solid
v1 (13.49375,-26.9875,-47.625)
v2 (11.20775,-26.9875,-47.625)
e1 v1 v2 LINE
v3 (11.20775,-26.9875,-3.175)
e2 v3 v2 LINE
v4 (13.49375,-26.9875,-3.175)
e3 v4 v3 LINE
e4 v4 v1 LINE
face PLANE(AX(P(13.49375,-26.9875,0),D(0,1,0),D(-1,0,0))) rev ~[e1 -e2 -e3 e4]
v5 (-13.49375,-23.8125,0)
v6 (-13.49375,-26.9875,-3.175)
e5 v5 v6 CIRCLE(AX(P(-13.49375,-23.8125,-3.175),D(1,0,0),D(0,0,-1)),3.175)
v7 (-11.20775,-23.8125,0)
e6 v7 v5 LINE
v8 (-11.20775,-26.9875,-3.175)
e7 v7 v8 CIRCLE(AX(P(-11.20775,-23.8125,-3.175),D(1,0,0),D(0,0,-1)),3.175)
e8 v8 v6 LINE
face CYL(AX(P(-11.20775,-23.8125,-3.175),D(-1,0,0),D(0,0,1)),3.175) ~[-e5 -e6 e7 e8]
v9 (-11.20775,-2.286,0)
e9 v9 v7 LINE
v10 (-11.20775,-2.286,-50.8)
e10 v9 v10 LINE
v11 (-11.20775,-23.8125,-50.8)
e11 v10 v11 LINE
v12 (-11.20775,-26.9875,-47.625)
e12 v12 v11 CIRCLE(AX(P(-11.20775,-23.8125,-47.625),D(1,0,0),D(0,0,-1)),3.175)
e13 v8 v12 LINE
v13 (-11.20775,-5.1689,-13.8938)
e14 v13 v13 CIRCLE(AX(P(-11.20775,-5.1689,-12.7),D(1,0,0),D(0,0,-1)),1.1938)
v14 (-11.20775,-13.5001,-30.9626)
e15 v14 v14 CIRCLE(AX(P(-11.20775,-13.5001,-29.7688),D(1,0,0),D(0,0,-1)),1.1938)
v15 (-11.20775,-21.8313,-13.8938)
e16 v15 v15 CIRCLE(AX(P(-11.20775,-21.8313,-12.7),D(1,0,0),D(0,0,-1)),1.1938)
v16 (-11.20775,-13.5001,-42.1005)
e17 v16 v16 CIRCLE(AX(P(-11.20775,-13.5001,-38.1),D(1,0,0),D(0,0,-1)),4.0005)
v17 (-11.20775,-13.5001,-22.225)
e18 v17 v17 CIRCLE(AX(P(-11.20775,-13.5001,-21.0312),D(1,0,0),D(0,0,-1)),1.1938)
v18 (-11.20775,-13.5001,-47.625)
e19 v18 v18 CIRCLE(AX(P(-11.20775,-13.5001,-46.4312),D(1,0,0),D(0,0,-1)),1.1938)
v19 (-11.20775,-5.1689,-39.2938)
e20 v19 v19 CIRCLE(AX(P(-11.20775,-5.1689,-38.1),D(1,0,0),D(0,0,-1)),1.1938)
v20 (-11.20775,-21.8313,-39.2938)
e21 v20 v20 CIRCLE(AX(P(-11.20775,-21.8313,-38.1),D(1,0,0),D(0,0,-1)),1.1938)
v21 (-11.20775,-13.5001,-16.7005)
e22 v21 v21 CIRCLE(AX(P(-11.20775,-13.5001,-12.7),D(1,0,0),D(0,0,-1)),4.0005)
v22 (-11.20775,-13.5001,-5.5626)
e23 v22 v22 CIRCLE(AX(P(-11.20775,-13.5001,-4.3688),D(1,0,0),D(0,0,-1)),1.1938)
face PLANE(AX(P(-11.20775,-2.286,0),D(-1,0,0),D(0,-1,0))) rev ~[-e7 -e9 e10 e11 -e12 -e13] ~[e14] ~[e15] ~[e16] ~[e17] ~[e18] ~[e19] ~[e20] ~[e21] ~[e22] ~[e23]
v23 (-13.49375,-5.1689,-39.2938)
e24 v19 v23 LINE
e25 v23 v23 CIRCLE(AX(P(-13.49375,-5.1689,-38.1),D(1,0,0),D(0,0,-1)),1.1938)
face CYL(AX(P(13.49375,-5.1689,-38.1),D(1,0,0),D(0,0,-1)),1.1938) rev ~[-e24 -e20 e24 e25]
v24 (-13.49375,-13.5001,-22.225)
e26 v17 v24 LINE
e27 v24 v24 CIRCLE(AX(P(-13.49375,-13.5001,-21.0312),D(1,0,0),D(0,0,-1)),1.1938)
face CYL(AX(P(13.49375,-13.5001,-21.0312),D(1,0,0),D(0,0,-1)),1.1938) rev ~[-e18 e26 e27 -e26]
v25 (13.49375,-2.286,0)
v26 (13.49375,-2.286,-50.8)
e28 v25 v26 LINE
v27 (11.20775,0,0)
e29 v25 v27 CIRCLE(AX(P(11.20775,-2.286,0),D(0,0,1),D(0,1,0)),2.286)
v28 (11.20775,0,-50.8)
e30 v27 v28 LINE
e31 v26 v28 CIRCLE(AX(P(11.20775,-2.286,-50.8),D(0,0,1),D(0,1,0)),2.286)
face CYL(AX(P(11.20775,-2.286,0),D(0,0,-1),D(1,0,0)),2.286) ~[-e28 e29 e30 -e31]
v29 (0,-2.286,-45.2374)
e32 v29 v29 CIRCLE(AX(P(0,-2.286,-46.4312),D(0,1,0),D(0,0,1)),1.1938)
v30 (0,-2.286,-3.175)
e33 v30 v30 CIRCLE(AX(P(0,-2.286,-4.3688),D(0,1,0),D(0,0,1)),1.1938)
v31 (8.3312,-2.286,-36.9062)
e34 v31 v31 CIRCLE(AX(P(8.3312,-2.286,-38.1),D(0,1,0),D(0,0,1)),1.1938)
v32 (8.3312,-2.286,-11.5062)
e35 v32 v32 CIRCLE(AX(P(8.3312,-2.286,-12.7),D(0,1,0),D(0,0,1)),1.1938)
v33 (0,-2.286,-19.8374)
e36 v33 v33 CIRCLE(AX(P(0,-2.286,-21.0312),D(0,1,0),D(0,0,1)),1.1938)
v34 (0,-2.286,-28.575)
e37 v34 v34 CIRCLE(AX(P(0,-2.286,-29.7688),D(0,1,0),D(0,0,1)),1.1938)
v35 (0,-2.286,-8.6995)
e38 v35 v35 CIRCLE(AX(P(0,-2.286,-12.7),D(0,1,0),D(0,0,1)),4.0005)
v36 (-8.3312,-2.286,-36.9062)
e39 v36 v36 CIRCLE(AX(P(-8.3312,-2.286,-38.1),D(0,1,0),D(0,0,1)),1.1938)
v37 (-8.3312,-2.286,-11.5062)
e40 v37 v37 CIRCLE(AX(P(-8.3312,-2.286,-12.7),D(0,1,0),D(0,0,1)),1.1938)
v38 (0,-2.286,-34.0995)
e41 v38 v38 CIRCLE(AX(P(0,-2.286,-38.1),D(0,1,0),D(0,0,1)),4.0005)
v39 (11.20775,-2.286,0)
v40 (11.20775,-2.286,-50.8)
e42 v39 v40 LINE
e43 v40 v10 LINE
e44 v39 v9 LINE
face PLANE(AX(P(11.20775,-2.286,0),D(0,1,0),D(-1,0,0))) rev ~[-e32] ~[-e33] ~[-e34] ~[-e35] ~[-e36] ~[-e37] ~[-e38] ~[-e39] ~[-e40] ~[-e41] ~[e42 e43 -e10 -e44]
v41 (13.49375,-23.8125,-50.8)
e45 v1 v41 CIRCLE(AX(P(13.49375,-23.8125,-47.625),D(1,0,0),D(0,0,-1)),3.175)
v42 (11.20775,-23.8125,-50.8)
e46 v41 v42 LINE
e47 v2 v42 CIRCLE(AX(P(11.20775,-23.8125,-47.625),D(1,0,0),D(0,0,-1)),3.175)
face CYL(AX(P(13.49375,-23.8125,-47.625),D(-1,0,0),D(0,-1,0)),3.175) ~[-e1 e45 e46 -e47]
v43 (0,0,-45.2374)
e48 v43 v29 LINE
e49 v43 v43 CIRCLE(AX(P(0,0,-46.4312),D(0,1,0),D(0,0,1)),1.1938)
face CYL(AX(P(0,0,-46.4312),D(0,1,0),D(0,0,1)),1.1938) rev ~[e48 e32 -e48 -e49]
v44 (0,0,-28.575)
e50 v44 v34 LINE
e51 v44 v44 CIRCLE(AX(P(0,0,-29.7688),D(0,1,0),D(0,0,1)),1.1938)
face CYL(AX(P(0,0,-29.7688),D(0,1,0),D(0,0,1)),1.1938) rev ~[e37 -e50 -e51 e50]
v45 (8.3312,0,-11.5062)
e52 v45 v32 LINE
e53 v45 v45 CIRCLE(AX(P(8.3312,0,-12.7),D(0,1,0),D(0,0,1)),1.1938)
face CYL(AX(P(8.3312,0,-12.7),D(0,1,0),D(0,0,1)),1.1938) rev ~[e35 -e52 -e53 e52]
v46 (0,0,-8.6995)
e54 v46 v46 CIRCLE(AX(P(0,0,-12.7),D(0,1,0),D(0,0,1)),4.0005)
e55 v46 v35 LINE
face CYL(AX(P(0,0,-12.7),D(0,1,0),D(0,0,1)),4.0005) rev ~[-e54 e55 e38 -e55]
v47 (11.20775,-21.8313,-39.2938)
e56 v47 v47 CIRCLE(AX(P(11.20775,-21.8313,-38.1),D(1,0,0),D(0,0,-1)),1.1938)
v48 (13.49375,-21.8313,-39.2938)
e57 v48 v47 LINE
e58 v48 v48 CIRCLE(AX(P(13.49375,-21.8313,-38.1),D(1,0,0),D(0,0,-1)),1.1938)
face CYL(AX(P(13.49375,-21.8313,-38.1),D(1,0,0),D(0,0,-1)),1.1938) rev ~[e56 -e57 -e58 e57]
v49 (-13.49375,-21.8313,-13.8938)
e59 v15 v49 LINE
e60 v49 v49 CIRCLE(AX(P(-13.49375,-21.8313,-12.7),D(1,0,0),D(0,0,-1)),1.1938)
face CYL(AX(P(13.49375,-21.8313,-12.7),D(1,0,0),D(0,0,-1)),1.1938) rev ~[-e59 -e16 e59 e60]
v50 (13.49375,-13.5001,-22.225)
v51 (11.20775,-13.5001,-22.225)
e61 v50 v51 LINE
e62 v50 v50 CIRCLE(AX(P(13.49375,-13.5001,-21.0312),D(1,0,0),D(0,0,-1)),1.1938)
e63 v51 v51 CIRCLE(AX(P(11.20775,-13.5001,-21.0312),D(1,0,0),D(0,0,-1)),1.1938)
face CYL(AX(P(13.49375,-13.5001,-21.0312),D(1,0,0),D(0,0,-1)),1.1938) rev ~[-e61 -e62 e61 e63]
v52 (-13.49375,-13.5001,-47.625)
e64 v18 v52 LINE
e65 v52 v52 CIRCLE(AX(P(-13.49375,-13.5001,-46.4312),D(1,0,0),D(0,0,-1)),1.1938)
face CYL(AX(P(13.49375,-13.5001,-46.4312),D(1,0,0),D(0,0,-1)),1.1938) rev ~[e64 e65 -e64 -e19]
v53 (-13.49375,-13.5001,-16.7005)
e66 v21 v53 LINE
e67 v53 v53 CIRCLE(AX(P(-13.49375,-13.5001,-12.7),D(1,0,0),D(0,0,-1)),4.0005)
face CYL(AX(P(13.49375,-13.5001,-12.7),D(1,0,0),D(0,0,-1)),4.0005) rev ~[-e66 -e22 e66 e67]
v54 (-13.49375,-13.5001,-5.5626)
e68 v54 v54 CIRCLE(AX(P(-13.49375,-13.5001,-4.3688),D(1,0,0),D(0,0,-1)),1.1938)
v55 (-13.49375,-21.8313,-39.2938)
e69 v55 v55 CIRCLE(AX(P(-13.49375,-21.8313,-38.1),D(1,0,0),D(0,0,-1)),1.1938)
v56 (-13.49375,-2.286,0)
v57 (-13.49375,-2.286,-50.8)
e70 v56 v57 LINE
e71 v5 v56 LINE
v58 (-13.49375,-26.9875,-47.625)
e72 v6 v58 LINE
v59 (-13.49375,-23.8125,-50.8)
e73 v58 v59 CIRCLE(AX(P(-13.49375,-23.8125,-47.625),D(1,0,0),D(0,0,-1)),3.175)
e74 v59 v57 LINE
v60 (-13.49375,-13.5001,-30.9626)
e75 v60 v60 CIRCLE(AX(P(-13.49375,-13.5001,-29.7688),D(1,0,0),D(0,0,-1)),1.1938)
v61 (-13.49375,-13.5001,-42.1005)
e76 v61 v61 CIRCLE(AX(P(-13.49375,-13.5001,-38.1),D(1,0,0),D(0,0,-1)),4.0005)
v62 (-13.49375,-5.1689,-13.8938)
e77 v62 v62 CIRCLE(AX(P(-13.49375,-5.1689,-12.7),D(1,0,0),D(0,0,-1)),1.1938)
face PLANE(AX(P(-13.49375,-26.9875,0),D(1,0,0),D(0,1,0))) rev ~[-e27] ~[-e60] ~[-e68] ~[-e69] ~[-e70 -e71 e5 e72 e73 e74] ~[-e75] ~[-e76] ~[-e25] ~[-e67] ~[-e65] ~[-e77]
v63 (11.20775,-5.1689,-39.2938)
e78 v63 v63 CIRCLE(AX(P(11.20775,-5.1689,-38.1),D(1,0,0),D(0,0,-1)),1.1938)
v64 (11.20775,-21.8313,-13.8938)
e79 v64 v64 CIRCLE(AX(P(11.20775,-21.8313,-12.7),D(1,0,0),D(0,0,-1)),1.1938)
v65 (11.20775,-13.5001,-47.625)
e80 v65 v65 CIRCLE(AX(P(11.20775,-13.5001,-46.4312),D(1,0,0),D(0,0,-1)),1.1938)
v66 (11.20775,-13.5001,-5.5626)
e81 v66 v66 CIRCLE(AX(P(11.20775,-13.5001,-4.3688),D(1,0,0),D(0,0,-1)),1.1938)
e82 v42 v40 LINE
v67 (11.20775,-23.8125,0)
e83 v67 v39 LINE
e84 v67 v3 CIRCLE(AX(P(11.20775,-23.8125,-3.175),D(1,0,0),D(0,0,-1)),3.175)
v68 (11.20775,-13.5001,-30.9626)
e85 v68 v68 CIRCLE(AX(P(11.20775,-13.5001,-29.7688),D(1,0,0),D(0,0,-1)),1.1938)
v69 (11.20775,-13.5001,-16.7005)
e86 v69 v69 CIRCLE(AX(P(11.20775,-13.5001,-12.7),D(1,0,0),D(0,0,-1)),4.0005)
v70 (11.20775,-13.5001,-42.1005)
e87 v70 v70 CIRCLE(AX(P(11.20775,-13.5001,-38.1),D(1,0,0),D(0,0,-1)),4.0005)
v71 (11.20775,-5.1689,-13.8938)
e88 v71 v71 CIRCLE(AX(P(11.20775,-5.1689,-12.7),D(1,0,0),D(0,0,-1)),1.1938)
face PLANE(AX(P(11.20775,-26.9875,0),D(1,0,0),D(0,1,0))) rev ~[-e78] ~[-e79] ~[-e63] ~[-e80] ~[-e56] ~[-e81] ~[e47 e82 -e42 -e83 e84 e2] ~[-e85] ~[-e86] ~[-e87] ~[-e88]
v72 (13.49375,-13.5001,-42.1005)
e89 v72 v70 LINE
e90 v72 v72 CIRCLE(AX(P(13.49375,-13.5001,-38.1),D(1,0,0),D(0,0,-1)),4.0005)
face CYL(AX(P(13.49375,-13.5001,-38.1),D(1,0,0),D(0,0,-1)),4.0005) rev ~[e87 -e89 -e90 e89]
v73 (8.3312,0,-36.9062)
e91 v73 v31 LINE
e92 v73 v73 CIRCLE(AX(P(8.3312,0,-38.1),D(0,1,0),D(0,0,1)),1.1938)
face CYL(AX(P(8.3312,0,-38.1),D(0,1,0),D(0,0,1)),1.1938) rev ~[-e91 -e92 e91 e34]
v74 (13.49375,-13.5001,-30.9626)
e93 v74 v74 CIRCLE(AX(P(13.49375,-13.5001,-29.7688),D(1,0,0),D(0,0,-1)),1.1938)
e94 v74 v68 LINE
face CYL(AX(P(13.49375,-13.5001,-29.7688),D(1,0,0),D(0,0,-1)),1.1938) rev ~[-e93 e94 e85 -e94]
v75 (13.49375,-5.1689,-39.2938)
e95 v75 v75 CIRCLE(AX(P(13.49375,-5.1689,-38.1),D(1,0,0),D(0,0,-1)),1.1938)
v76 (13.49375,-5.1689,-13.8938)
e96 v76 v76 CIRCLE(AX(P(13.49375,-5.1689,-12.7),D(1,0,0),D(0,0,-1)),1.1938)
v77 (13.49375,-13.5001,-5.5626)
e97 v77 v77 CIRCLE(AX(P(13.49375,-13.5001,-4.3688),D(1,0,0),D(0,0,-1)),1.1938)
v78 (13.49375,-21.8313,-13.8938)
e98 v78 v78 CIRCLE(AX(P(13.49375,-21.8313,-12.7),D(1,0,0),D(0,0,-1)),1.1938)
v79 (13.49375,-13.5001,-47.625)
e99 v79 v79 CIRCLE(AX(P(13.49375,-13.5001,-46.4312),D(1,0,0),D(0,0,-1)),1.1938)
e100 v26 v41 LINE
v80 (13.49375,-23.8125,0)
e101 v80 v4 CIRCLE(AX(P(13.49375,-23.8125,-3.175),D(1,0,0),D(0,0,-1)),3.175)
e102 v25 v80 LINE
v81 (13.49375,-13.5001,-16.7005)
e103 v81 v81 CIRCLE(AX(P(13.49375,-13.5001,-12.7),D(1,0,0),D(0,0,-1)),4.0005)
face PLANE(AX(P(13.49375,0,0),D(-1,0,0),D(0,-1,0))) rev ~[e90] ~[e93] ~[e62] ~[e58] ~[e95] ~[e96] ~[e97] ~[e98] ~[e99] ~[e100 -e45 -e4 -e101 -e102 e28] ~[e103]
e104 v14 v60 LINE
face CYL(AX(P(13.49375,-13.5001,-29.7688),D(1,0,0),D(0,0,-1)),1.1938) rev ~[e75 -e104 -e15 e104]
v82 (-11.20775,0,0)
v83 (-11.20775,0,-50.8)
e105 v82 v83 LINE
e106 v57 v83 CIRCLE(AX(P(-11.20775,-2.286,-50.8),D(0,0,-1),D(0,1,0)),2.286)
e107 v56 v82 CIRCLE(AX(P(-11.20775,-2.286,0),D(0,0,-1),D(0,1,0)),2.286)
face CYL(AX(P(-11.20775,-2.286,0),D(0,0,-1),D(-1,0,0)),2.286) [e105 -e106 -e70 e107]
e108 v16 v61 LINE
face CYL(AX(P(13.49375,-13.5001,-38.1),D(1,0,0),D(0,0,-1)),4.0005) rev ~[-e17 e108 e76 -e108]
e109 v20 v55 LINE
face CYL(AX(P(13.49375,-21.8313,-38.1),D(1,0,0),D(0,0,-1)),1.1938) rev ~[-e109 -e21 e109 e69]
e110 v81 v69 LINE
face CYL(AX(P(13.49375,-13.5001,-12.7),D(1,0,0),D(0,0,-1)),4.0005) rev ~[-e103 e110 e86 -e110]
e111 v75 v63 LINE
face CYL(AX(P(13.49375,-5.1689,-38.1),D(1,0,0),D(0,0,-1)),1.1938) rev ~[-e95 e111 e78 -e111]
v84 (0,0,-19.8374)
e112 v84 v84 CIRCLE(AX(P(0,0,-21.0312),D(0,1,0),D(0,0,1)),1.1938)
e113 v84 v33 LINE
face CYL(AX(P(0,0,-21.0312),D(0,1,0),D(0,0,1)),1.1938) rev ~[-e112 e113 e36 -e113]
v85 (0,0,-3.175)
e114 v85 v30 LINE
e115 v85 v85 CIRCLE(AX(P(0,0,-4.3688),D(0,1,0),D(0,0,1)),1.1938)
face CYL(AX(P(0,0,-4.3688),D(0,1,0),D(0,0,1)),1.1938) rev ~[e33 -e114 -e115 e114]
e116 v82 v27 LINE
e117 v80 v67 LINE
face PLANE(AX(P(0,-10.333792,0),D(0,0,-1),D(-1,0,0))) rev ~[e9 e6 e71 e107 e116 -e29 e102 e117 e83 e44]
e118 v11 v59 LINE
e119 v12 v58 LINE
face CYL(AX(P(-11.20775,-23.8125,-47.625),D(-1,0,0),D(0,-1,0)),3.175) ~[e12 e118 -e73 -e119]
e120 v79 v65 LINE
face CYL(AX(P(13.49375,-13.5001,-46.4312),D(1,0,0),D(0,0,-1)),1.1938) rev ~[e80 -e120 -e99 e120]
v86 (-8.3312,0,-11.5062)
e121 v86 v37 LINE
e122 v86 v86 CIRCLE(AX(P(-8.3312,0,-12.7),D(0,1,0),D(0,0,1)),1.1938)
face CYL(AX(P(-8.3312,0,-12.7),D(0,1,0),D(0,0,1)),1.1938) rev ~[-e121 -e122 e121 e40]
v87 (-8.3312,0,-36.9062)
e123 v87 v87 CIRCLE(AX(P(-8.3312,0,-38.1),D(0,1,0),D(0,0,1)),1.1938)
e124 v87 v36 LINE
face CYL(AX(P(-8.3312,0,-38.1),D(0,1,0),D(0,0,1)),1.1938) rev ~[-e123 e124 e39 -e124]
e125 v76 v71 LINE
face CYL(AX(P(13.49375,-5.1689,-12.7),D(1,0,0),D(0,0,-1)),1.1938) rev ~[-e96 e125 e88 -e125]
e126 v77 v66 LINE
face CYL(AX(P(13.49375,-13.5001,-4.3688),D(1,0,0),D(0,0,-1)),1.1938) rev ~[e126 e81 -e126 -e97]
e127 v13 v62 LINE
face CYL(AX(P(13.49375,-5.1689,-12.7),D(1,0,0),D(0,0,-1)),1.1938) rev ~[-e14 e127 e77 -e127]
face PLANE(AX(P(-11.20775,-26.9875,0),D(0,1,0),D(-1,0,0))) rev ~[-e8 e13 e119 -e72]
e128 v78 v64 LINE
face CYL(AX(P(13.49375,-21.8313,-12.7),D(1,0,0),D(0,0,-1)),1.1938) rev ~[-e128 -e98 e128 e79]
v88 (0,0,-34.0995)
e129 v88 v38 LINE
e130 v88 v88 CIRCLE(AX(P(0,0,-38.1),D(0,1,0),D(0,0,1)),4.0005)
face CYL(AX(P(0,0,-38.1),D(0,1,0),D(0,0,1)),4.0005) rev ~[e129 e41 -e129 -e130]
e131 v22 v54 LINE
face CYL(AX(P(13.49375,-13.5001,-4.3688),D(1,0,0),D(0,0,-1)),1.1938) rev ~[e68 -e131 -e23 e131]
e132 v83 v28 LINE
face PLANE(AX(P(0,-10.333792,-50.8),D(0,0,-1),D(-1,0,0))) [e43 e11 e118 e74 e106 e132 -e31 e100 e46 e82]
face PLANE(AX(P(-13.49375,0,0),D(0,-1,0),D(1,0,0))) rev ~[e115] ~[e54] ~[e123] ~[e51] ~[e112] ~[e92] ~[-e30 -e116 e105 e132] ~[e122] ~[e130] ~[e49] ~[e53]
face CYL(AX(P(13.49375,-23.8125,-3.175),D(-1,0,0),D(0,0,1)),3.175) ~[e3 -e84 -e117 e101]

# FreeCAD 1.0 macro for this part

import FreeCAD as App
import Part
import Sketcher
Q = App.Units.Quantity


def edges_at(feature, points):
    """Names of the edges that pass closest to the given points."""
    edges = feature.Shape.Edges
    near = lambda p: min(range(len(edges)), key=lambda i: edges[i].distToShape(Part.Vertex(*p))[0])
    return sorted({f"Edge{near(p) + 1}" for p in points})


def add_polygon(sketch, points):
    """Adds a closed chain of lines whose ends are joined by coincident constraints."""
    first, n = sketch.GeometryCount, len(points)
    for a, b in zip(points, points[1:] + points[:1]):
        sketch.addGeometry(Part.LineSegment(App.Vector(*a, 0), App.Vector(*b, 0)), False)
    for i in range(n):
        sketch.addConstraint(Sketcher.Constraint("Coincident", first + i, 2, first + (i + 1) % n, 1))

doc = App.newDocument("Part")
params = doc.addObject("Spreadsheet::Sheet", "Params")
for row, (alias, value) in enumerate([
    ("sketch1_width", "0.09 in"),
    ("sketch1_width2", "1.0625 in"),
    ("pad1_length", "2 in"),
    ("sketch2_diameter", "0.315 in"),
    ("sketch2_diameter2", "0.094 in"),
    ("sketch3_diameter", "0.315 in"),
    ("sketch3_diameter2", "0.094 in"),
    ("linearpattern_pitch", "1 in"),
    ("fillet_radius", "0.09 in"),
    ("fillet2_radius", "0.125 in"),
], start=1):
    params.set(f"A{row}", alias)
    params.set(f"B{row}", "=" + value)
    params.setAlias(f"B{row}", alias)

body = doc.addObject("PartDesign::Body", "Body")

# Sketch on XY plane
sketch1 = body.newObject("Sketcher::SketchObject", "Sketch")
sketch1.AttachmentSupport = (doc.getObject("XY_Plane"), [""])
sketch1.MapMode = "FlatFace"
add_polygon(sketch1, [(11.2, -2.3), (11.2, -27), (13.5, -27), (13.5, 0), (-13.5, 0), (-13.5, -27), (-11.2, -27), (-11.2, -2.3)])  # lines 0-7
sketch1.addConstraint([
    Sketcher.Constraint("Vertical", 0),
    Sketcher.Constraint("Horizontal", 1),
    Sketcher.Constraint("Vertical", 2),
    Sketcher.Constraint("Horizontal", 3),
    Sketcher.Constraint("Vertical", 4),
    Sketcher.Constraint("Horizontal", 5),
    Sketcher.Constraint("Vertical", 6),
    Sketcher.Constraint("Horizontal", 7),
    Sketcher.Constraint("Symmetric", 2, 2, 3, 2, -1, 1),
    Sketcher.Constraint("Symmetric", 0, 2, 5, 2, -2),
    Sketcher.Constraint("Equal", 3, 2),
    Sketcher.Constraint("DistanceX", 1, 1, 1, 2, Q("0.09 in")),
    Sketcher.Constraint("DistanceX", 3, 2, 3, 1, Q("1.0625 in")),
    Sketcher.Constraint("DistanceY", 6, 2, -1, 1, Q("0.09 in")),
])
sketch1.setExpression("Constraints[19]", "Params.sketch1_width")
sketch1.setExpression("Constraints[20]", "Params.sketch1_width2")
pad1 = body.newObject("PartDesign::Pad", "Pad")
pad1.Profile = sketch1
pad1.setExpression("Length", "Params.pad1_length")
pad1.Reversed = True

# Sketch on YZ plane
sketch2 = body.newObject("Sketcher::SketchObject", "Sketch001")
sketch2.AttachmentSupport = (doc.getObject("YZ_Plane"), [""])
sketch2.MapMode = "FlatFace"
sketch2.AttachmentOffset = App.Placement(App.Vector(0, 0, 0.53125 * 25.4), App.Rotation())
sketch2.addGeometry([
    Part.Circle(App.Vector(-13.5, -12.7, 0), App.Vector(0, 0, 1), 4),  # 0
    Part.Circle(App.Vector(-5.2, -12.7, 0), App.Vector(0, 0, 1), 1.2),  # 1
    Part.Circle(App.Vector(-13.5, -21, 0), App.Vector(0, 0, 1), 1.2),  # 2
    Part.Circle(App.Vector(-21.8, -12.7, 0), App.Vector(0, 0, 1), 1.2),  # 3
    Part.Circle(App.Vector(-13.5, -4.4, 0), App.Vector(0, 0, 1), 1.2),  # 4
], False)
sketch2.addConstraint([
    Sketcher.Constraint("Equal", 1, 2),
    Sketcher.Constraint("Equal", 2, 3),
    Sketcher.Constraint("Equal", 3, 4),
    Sketcher.Constraint("Horizontal", 0, 3, 1, 3),
    Sketcher.Constraint("Horizontal", 1, 3, 3, 3),
    Sketcher.Constraint("Vertical", 0, 3, 2, 3),
    Sketcher.Constraint("Vertical", 2, 3, 4, 3),
    Sketcher.Constraint("Diameter", 0, Q("0.315 in")),
    Sketcher.Constraint("Diameter", 1, Q("0.094 in")),
    Sketcher.Constraint("DistanceY", 0, 3, -1, 1, Q("0.5 in")),
    Sketcher.Constraint("DistanceY", 2, 3, -1, 1, Q("0.828 in")),
    Sketcher.Constraint("DistanceY", 4, 3, -1, 1, Q("0.172 in")),
    Sketcher.Constraint("DistanceX", 0, 3, 1, 3, Q("0.328 in")),
    Sketcher.Constraint("DistanceX", 3, 3, 0, 3, Q("0.328 in")),
    Sketcher.Constraint("DistanceX", 0, 3, -1, 1, Q("0.5315 in")),
])
sketch2.setExpression("Constraints[7]", "Params.sketch2_diameter")
sketch2.setExpression("Constraints[8]", "Params.sketch2_diameter2")
pocket1 = body.newObject("PartDesign::Pocket", "Pocket")
pocket1.Profile = sketch2
pocket1.Type = "ThroughAll"

# Sketch on XZ plane
sketch3 = body.newObject("Sketcher::SketchObject", "Sketch002")
sketch3.AttachmentSupport = (doc.getObject("XZ_Plane"), [""])
sketch3.MapMode = "FlatFace"
sketch3.addGeometry([
    Part.Circle(App.Vector(0, -12.7, 0), App.Vector(0, 0, 1), 4),  # 0
    Part.Circle(App.Vector(0, -4.4, 0), App.Vector(0, 0, 1), 1.2),  # 1
    Part.Circle(App.Vector(-8.3, -12.7, 0), App.Vector(0, 0, 1), 1.2),  # 2
    Part.Circle(App.Vector(0, -21, 0), App.Vector(0, 0, 1), 1.2),  # 3
    Part.Circle(App.Vector(8.3, -12.7, 0), App.Vector(0, 0, 1), 1.2),  # 4
], False)
sketch3.addConstraint([
    Sketcher.Constraint("Equal", 1, 2),
    Sketcher.Constraint("Equal", 2, 3),
    Sketcher.Constraint("Equal", 3, 4),
    Sketcher.Constraint("Symmetric", 2, 3, 4, 3, -2),
    Sketcher.Constraint("PointOnObject", 0, 3, -2),
    Sketcher.Constraint("PointOnObject", 1, 3, -2),
    Sketcher.Constraint("PointOnObject", 3, 3, -2),
    Sketcher.Constraint("Horizontal", 0, 3, 2, 3),
    Sketcher.Constraint("Diameter", 0, Q("0.315 in")),
    Sketcher.Constraint("Diameter", 1, Q("0.094 in")),
    Sketcher.Constraint("DistanceY", 0, 3, -1, 1, Q("0.5 in")),
    Sketcher.Constraint("DistanceY", 1, 3, -1, 1, Q("0.172 in")),
    Sketcher.Constraint("DistanceX", 2, 3, -1, 1, Q("0.328 in")),
    Sketcher.Constraint("DistanceY", 3, 3, -1, 1, Q("0.828 in")),
])
sketch3.setExpression("Constraints[8]", "Params.sketch3_diameter")
sketch3.setExpression("Constraints[9]", "Params.sketch3_diameter2")
pocket2 = body.newObject("PartDesign::Pocket", "Pocket001")
pocket2.Profile = sketch3
pocket2.Type = "ThroughAll"
pocket2.Reversed = True
doc.recompute()

linearpattern = body.newObject("PartDesign::LinearPattern", "LinearPattern")
linearpattern.Originals = [pocket1, pocket2]
linearpattern.Direction = (doc.getObject("Z_Axis"), [""])
linearpattern.Mode = "offset"
linearpattern.setExpression("Offset", "Params.linearpattern_pitch")
linearpattern.Occurrences = 2
linearpattern.Reversed = True
body.Tip = linearpattern
doc.recompute()

fillet = body.newObject("PartDesign::Fillet", "Fillet")
fillet.Base = (linearpattern, edges_at(linearpattern, [(-13.494, 0, -25.4), (13.494, 0, -25.4)]))
fillet.setExpression("Radius", "Params.fillet_radius")
doc.recompute()

fillet2 = body.newObject("PartDesign::Fillet", "Fillet001")
fillet2.Base = (fillet, edges_at(fillet, [
    (12.351, -26.988, -50.8),
    (-12.351, -26.988, -50.8),
    (12.351, -26.988, 0),
    (-12.351, -26.988, 0),
]))
fillet2.setExpression("Radius", "Params.fillet2_radius")

doc.recompute()
